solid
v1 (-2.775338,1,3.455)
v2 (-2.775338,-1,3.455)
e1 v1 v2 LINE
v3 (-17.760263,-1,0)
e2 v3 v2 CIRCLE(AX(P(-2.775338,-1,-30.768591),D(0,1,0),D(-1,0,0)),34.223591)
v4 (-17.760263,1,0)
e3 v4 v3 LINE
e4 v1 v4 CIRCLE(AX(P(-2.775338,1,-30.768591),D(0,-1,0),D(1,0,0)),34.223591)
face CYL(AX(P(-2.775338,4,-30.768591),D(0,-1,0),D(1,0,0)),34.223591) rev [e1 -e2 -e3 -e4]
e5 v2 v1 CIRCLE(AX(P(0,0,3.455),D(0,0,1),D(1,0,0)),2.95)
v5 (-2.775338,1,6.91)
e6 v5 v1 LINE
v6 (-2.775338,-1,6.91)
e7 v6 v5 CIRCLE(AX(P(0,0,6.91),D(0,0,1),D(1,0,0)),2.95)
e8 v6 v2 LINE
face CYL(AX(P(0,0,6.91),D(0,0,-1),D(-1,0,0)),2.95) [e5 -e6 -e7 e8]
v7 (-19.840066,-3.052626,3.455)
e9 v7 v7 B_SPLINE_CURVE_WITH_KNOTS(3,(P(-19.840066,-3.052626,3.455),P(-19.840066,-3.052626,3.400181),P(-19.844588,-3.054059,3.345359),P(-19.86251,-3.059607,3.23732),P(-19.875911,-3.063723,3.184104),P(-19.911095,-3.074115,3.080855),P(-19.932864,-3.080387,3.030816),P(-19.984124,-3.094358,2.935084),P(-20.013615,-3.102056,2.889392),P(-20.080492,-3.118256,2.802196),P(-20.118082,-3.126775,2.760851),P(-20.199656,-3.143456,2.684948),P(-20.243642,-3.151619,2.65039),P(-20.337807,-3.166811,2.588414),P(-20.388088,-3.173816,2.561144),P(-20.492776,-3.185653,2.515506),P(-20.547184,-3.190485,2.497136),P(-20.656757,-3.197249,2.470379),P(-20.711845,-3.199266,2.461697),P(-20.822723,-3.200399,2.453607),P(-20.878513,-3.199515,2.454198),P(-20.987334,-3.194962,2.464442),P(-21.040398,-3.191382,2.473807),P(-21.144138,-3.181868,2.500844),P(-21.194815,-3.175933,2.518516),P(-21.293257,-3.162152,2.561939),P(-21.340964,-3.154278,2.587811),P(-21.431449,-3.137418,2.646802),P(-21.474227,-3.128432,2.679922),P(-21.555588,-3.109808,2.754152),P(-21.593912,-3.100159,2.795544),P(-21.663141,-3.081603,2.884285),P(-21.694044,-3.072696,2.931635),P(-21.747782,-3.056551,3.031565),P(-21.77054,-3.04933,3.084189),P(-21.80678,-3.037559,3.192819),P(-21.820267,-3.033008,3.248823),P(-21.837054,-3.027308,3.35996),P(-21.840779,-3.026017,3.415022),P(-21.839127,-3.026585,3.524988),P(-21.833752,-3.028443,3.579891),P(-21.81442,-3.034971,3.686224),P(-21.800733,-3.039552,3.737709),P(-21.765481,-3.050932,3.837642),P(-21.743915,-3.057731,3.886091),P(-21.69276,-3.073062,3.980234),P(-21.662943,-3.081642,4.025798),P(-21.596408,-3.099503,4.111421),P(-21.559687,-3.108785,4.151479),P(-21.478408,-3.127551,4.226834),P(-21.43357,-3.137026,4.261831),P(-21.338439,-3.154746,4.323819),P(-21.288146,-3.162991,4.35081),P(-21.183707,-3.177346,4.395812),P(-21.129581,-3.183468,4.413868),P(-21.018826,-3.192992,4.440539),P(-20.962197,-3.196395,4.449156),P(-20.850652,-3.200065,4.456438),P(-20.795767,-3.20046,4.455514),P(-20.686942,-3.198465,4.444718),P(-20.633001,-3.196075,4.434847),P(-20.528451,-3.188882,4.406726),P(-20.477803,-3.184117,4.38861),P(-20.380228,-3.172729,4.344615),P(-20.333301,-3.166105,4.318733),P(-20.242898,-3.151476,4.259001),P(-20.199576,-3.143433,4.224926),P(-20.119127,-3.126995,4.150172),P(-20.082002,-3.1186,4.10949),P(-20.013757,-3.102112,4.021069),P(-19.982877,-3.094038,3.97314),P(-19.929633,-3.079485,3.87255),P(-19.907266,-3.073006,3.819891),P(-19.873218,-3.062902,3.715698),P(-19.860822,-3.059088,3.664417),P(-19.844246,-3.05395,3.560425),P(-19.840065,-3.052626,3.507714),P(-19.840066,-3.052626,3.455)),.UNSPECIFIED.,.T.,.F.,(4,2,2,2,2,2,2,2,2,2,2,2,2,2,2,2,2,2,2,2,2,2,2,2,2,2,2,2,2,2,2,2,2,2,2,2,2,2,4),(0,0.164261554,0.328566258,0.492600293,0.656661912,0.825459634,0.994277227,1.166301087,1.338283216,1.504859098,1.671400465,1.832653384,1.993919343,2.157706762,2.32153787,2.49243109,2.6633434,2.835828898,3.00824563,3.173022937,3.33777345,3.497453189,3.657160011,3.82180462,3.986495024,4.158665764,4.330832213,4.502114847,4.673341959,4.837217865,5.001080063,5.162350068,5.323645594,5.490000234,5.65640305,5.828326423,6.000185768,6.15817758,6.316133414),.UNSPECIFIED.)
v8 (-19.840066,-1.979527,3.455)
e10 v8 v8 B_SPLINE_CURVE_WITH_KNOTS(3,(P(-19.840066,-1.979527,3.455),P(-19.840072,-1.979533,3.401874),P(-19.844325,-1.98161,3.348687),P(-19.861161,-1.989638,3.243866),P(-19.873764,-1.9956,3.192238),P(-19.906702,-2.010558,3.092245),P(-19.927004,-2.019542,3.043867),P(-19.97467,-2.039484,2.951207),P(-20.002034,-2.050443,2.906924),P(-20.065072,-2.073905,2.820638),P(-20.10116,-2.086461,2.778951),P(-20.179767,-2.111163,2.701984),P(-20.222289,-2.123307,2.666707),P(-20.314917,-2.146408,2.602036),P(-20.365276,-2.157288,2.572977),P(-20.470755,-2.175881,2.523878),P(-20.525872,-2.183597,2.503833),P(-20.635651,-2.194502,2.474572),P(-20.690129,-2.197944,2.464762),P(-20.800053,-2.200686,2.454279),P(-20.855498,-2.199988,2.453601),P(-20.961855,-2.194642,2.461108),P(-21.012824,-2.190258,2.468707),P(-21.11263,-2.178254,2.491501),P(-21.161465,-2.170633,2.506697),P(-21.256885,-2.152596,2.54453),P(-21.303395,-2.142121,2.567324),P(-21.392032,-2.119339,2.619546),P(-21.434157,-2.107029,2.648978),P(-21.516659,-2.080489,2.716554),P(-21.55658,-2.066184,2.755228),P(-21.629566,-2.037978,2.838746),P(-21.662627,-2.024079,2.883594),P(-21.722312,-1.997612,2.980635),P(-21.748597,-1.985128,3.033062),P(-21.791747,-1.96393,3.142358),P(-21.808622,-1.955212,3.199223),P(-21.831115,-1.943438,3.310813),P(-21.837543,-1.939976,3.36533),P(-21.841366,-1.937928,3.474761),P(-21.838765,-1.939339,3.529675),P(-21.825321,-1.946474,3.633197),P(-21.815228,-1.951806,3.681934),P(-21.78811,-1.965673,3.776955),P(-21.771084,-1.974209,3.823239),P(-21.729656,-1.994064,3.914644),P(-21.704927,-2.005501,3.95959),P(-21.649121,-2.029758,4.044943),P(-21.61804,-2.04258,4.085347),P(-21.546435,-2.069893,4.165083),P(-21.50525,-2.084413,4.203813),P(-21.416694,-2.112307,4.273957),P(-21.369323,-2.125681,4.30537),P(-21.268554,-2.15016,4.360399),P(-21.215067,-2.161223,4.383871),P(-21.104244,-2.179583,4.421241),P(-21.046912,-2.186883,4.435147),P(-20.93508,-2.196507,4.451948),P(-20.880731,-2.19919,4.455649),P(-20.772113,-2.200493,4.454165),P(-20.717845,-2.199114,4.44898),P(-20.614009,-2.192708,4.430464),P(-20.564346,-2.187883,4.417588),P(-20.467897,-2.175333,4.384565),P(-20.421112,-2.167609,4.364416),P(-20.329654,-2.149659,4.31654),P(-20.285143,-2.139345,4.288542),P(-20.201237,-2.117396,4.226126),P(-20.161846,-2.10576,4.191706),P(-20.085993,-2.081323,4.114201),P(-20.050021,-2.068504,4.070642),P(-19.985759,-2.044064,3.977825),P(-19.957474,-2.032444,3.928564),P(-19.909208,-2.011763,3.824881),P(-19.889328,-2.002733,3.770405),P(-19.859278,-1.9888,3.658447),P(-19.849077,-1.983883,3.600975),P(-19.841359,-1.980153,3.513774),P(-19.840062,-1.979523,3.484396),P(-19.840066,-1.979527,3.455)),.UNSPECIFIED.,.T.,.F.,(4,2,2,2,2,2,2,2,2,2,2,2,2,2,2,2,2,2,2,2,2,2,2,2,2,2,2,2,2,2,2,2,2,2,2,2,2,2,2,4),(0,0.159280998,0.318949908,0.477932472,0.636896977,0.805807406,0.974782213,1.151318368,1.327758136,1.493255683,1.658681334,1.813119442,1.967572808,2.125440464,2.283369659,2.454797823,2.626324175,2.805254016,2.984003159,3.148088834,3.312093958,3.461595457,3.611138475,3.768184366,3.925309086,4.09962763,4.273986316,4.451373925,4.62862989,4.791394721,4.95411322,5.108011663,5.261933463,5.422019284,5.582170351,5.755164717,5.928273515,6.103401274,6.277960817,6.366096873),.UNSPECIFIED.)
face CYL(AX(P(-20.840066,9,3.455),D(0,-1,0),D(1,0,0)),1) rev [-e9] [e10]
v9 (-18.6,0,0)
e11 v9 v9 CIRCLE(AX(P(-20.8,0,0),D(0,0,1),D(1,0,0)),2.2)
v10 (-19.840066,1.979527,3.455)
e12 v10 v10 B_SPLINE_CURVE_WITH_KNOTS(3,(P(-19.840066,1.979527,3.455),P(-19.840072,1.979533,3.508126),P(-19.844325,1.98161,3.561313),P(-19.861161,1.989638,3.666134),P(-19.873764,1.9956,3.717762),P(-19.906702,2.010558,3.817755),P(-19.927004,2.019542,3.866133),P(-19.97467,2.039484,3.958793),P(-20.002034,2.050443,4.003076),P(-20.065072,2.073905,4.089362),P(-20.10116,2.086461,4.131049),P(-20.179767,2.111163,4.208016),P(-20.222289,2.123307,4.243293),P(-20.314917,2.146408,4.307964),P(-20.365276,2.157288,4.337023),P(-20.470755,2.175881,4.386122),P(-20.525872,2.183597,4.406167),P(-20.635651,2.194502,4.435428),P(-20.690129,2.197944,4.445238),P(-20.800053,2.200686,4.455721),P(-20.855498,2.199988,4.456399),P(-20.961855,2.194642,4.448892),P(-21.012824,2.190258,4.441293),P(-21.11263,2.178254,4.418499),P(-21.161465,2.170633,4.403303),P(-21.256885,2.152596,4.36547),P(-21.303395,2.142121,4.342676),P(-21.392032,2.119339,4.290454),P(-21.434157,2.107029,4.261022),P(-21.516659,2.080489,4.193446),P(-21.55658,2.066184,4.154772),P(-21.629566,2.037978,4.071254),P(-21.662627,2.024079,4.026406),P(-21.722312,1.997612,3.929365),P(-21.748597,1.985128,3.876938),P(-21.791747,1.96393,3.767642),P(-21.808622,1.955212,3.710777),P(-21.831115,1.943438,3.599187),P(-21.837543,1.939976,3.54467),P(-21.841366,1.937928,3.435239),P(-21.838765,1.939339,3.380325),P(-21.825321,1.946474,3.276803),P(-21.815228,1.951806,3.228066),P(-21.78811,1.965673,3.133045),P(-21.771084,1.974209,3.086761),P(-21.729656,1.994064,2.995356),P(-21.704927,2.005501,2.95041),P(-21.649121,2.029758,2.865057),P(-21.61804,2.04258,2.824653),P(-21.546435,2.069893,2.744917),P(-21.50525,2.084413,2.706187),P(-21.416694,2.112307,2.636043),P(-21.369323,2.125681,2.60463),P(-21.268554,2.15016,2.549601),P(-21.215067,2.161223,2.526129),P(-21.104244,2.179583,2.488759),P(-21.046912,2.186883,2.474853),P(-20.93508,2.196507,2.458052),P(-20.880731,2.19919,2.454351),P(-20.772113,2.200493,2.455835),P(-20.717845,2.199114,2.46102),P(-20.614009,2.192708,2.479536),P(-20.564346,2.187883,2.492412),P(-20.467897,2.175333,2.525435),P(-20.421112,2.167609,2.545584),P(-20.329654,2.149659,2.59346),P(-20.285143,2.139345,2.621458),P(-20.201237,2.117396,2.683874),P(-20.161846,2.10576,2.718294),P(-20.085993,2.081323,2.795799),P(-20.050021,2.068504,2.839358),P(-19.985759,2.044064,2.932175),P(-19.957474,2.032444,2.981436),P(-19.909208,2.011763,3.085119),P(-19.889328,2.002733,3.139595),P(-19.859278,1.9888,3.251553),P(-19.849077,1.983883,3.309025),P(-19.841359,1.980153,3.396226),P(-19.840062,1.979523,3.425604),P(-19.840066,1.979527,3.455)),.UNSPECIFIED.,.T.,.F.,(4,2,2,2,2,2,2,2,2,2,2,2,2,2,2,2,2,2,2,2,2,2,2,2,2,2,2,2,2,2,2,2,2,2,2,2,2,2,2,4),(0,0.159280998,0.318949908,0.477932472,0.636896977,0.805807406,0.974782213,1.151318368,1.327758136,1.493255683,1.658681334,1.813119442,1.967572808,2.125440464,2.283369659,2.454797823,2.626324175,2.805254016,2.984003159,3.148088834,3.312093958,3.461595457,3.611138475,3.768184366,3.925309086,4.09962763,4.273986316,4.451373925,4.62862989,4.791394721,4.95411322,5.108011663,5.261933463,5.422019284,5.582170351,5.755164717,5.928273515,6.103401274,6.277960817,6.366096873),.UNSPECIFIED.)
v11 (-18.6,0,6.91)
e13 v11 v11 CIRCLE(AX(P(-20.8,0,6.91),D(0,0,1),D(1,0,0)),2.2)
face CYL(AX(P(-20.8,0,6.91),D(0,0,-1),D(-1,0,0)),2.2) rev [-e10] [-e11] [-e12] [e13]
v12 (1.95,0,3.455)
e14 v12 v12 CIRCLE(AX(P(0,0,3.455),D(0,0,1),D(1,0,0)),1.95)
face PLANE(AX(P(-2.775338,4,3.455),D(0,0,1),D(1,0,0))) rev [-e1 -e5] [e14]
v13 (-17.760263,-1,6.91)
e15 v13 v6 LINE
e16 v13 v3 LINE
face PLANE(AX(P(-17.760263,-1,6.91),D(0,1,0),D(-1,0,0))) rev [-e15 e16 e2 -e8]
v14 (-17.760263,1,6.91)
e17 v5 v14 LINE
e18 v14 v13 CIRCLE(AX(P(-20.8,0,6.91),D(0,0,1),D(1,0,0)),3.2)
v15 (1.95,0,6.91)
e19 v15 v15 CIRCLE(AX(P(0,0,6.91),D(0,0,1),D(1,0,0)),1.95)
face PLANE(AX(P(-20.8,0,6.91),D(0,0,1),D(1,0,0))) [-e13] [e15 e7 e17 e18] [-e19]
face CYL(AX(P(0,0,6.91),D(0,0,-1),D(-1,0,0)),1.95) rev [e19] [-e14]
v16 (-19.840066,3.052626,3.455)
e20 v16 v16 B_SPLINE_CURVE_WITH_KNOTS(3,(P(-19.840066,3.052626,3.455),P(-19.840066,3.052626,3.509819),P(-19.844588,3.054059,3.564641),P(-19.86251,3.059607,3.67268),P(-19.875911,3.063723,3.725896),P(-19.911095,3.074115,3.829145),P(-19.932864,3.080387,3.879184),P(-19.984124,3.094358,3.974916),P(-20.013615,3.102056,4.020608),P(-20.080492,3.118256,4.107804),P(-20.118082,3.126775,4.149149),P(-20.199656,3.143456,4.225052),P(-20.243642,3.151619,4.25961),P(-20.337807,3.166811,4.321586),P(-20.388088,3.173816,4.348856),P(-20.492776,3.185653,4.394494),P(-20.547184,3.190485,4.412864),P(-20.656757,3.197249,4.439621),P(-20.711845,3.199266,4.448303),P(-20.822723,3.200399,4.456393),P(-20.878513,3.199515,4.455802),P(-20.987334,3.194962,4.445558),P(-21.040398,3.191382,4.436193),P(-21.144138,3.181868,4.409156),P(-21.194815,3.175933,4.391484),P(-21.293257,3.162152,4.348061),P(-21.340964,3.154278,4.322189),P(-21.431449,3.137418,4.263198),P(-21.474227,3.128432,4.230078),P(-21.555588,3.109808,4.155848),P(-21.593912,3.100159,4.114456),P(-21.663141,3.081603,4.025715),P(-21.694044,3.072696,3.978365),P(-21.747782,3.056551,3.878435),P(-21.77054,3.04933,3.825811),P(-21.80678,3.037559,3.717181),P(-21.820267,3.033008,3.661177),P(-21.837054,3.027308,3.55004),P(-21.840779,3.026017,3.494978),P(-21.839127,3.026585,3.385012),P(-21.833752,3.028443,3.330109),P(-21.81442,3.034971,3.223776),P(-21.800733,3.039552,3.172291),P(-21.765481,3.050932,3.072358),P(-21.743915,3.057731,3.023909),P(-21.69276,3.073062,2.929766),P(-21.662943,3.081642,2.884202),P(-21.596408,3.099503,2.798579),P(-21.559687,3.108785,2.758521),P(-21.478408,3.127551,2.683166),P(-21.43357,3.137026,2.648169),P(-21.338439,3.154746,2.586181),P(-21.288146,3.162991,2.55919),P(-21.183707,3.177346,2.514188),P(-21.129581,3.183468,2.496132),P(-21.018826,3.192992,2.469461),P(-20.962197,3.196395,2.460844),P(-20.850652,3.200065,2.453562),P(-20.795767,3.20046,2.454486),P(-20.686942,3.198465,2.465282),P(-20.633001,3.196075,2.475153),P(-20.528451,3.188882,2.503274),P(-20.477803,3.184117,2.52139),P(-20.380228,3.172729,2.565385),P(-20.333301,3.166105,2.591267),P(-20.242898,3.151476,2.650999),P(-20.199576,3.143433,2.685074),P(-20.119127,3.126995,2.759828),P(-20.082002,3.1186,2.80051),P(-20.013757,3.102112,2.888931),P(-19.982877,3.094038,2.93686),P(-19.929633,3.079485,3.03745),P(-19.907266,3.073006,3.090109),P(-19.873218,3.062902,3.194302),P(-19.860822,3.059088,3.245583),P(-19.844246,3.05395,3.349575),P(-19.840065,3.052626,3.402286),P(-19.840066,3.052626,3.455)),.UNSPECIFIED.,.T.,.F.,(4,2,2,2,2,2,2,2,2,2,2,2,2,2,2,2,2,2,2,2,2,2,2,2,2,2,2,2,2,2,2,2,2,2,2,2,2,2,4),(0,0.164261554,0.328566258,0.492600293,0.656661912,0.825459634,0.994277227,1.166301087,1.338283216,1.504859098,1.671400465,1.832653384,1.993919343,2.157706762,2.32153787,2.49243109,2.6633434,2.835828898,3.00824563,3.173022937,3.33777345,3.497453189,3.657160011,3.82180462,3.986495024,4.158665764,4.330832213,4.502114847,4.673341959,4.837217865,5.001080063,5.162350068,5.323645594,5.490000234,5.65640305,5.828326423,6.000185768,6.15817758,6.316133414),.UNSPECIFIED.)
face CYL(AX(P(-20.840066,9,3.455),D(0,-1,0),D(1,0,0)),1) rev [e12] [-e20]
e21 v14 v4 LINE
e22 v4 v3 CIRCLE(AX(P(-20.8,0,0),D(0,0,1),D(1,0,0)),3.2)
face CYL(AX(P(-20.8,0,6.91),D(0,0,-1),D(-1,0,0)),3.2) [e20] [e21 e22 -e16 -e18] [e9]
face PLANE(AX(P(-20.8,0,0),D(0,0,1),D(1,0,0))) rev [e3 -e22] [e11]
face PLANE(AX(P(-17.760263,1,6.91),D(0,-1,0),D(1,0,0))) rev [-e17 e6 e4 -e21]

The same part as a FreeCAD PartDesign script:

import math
import FreeCAD as App
import Part
import Sketcher
from FreeCAD import Vector
Q = App.Units.Quantity

doc = App.newDocument("Part")
body = doc.addObject("PartDesign::Body", "Body")

# Sketch on XY plane
sketch1 = body.newObject("Sketcher::SketchObject", "Sketch")
sketch1.AttachmentSupport = (doc.getObject("XY_Plane"), [""])
sketch1.MapMode = "FlatFace"
sketch1.addGeometry(Part.LineSegment(Vector(-17.760263, -1, 0), Vector(-2.775338, -1, 0)), False)
sketch1.addGeometry(Part.ArcOfCircle(Part.Circle(Vector(0, 0, 0), Vector(0, 0, 1), 2.95), math.radians(-160.185072), math.radians(160.185072)), False)
sketch1.addGeometry(Part.LineSegment(Vector(-2.775338, 1, 0), Vector(-17.760263, 1, 0)), False)
sketch1.addGeometry(Part.ArcOfCircle(Part.Circle(Vector(-20.8, 0, 0), Vector(0, 0, 1), 3.2), math.radians(18.209957), math.radians(341.790043)), False)
sketch1.addGeometry(Part.Circle(Vector(-20.8, 0, 0), Vector(0, 0, 1), 2.2), False)
sketch1.addGeometry(Part.Circle(Vector(0, 0, 0), Vector(0, 0, 1), 1.95), False)
sketch1.addConstraint(Sketcher.Constraint("Coincident", 0, 2, 1, 1))
sketch1.addConstraint(Sketcher.Constraint("Coincident", 1, 2, 2, 1))
sketch1.addConstraint(Sketcher.Constraint("Coincident", 2, 2, 3, 1))
sketch1.addConstraint(Sketcher.Constraint("Coincident", 3, 2, 0, 1))
sketch1.addConstraint(Sketcher.Constraint("Horizontal", 0))
sketch1.addConstraint(Sketcher.Constraint("Horizontal", 2))
sketch1.addConstraint(Sketcher.Constraint("Coincident", 1, 3, -1, 1))
sketch1.addConstraint(Sketcher.Constraint("Coincident", 5, 3, -1, 1))
sketch1.addConstraint(Sketcher.Constraint("Coincident", 4, 3, 3, 3))
sketch1.addConstraint(Sketcher.Constraint("Symmetric", 2, 2, 3, 2, -1))
sketch1.addConstraint(Sketcher.Constraint("Diameter", 4, Q("4.4 mm")))
sketch1.addConstraint(Sketcher.Constraint("Diameter", 5, Q("3.9 mm")))
sketch1.addConstraint(Sketcher.Constraint("Radius", 3, Q("3.2 mm")))
sketch1.addConstraint(Sketcher.Constraint("Radius", 1, Q("2.95 mm")))
sketch1.addConstraint(Sketcher.Constraint("DistanceY", 0, 2, -1, 1, Q("1 mm")))
sketch1.addConstraint(Sketcher.Constraint("DistanceX", 3, 3, -1, 1, Q("20.8 mm")))
pad1 = body.newObject("PartDesign::Pad", "Pad")
pad1.Profile = sketch1
pad1.Length = 6.91

# Sketch on XZ plane
sketch2 = body.newObject("Sketcher::SketchObject", "Sketch001")
sketch2.AttachmentSupport = (doc.getObject("XZ_Plane"), [""])
sketch2.MapMode = "FlatFace"
sketch2.AttachmentOffset = App.Placement(Vector(0, 0, 1), App.Rotation())
sketch2.addGeometry(Part.Circle(Vector(-20.840066, 3.455, 0), Vector(0, 0, 1), 1), False)
sketch2.addConstraint(Sketcher.Constraint("Diameter", 0, Q("2 mm")))
sketch2.addConstraint(Sketcher.Constraint("DistanceY", -1, 1, 0, 3, Q("3.455 mm")))
sketch2.addConstraint(Sketcher.Constraint("DistanceX", 0, 3, -1, 1, Q("20.840066 mm")))
pocket1 = body.newObject("PartDesign::Pocket", "Pocket")
pocket1.Profile = sketch2
pocket1.Length = 20
pocket1.Midplane = True

# Sketch on XZ plane
sketch3 = body.newObject("Sketcher::SketchObject", "Sketch002")
sketch3.AttachmentSupport = (doc.getObject("XZ_Plane"), [""])
sketch3.MapMode = "FlatFace"
sketch3.AttachmentOffset = App.Placement(Vector(0, 0, 1), App.Rotation())
sketch3.addGeometry(Part.LineSegment(Vector(2.95, 3.455, 0), Vector(-2.775338, 3.455, 0)), False)
sketch3.addGeometry(Part.ArcOfCircle(Part.Circle(Vector(-2.775338, -30.768591, 0), Vector(0, 0, 1), 34.223591), math.radians(90), math.radians(115.967018)), False)
sketch3.addGeometry(Part.LineSegment(Vector(-17.760263, 0, 0), Vector(2.95, 0, 0)), False)
sketch3.addGeometry(Part.LineSegment(Vector(2.95, 0, 0), Vector(2.95, 3.455, 0)), False)
sketch3.addConstraint(Sketcher.Constraint("Tangent", 0, 2, 1, 1))
sketch3.addConstraint(Sketcher.Constraint("Coincident", 1, 2, 2, 1))
sketch3.addConstraint(Sketcher.Constraint("Coincident", 2, 2, 3, 1))
sketch3.addConstraint(Sketcher.Constraint("Coincident", 3, 2, 0, 1))
sketch3.addConstraint(Sketcher.Constraint("Horizontal", 0))
sketch3.addConstraint(Sketcher.Constraint("Horizontal", 2))
sketch3.addConstraint(Sketcher.Constraint("Vertical", 3))
sketch3.addConstraint(Sketcher.Constraint("PointOnObject", 1, 2, -1))
sketch3.addConstraint(Sketcher.Constraint("DistanceY", 3, 1, 3, 2, Q("3.455 mm")))
sketch3.addConstraint(Sketcher.Constraint("DistanceX", -1, 1, 2, 2, Q("2.95 mm")))
sketch3.addConstraint(Sketcher.Constraint("Radius", 1, Q("34.223591 mm")))
sketch3.addConstraint(Sketcher.Constraint("DistanceX", 0, 2, 0, 1, Q("5.725338 mm")))
pocket2 = body.newObject("PartDesign::Pocket", "Pocket001")
pocket2.Profile = sketch3
pocket2.Length = 10
pocket2.Midplane = True

doc.recompute()
